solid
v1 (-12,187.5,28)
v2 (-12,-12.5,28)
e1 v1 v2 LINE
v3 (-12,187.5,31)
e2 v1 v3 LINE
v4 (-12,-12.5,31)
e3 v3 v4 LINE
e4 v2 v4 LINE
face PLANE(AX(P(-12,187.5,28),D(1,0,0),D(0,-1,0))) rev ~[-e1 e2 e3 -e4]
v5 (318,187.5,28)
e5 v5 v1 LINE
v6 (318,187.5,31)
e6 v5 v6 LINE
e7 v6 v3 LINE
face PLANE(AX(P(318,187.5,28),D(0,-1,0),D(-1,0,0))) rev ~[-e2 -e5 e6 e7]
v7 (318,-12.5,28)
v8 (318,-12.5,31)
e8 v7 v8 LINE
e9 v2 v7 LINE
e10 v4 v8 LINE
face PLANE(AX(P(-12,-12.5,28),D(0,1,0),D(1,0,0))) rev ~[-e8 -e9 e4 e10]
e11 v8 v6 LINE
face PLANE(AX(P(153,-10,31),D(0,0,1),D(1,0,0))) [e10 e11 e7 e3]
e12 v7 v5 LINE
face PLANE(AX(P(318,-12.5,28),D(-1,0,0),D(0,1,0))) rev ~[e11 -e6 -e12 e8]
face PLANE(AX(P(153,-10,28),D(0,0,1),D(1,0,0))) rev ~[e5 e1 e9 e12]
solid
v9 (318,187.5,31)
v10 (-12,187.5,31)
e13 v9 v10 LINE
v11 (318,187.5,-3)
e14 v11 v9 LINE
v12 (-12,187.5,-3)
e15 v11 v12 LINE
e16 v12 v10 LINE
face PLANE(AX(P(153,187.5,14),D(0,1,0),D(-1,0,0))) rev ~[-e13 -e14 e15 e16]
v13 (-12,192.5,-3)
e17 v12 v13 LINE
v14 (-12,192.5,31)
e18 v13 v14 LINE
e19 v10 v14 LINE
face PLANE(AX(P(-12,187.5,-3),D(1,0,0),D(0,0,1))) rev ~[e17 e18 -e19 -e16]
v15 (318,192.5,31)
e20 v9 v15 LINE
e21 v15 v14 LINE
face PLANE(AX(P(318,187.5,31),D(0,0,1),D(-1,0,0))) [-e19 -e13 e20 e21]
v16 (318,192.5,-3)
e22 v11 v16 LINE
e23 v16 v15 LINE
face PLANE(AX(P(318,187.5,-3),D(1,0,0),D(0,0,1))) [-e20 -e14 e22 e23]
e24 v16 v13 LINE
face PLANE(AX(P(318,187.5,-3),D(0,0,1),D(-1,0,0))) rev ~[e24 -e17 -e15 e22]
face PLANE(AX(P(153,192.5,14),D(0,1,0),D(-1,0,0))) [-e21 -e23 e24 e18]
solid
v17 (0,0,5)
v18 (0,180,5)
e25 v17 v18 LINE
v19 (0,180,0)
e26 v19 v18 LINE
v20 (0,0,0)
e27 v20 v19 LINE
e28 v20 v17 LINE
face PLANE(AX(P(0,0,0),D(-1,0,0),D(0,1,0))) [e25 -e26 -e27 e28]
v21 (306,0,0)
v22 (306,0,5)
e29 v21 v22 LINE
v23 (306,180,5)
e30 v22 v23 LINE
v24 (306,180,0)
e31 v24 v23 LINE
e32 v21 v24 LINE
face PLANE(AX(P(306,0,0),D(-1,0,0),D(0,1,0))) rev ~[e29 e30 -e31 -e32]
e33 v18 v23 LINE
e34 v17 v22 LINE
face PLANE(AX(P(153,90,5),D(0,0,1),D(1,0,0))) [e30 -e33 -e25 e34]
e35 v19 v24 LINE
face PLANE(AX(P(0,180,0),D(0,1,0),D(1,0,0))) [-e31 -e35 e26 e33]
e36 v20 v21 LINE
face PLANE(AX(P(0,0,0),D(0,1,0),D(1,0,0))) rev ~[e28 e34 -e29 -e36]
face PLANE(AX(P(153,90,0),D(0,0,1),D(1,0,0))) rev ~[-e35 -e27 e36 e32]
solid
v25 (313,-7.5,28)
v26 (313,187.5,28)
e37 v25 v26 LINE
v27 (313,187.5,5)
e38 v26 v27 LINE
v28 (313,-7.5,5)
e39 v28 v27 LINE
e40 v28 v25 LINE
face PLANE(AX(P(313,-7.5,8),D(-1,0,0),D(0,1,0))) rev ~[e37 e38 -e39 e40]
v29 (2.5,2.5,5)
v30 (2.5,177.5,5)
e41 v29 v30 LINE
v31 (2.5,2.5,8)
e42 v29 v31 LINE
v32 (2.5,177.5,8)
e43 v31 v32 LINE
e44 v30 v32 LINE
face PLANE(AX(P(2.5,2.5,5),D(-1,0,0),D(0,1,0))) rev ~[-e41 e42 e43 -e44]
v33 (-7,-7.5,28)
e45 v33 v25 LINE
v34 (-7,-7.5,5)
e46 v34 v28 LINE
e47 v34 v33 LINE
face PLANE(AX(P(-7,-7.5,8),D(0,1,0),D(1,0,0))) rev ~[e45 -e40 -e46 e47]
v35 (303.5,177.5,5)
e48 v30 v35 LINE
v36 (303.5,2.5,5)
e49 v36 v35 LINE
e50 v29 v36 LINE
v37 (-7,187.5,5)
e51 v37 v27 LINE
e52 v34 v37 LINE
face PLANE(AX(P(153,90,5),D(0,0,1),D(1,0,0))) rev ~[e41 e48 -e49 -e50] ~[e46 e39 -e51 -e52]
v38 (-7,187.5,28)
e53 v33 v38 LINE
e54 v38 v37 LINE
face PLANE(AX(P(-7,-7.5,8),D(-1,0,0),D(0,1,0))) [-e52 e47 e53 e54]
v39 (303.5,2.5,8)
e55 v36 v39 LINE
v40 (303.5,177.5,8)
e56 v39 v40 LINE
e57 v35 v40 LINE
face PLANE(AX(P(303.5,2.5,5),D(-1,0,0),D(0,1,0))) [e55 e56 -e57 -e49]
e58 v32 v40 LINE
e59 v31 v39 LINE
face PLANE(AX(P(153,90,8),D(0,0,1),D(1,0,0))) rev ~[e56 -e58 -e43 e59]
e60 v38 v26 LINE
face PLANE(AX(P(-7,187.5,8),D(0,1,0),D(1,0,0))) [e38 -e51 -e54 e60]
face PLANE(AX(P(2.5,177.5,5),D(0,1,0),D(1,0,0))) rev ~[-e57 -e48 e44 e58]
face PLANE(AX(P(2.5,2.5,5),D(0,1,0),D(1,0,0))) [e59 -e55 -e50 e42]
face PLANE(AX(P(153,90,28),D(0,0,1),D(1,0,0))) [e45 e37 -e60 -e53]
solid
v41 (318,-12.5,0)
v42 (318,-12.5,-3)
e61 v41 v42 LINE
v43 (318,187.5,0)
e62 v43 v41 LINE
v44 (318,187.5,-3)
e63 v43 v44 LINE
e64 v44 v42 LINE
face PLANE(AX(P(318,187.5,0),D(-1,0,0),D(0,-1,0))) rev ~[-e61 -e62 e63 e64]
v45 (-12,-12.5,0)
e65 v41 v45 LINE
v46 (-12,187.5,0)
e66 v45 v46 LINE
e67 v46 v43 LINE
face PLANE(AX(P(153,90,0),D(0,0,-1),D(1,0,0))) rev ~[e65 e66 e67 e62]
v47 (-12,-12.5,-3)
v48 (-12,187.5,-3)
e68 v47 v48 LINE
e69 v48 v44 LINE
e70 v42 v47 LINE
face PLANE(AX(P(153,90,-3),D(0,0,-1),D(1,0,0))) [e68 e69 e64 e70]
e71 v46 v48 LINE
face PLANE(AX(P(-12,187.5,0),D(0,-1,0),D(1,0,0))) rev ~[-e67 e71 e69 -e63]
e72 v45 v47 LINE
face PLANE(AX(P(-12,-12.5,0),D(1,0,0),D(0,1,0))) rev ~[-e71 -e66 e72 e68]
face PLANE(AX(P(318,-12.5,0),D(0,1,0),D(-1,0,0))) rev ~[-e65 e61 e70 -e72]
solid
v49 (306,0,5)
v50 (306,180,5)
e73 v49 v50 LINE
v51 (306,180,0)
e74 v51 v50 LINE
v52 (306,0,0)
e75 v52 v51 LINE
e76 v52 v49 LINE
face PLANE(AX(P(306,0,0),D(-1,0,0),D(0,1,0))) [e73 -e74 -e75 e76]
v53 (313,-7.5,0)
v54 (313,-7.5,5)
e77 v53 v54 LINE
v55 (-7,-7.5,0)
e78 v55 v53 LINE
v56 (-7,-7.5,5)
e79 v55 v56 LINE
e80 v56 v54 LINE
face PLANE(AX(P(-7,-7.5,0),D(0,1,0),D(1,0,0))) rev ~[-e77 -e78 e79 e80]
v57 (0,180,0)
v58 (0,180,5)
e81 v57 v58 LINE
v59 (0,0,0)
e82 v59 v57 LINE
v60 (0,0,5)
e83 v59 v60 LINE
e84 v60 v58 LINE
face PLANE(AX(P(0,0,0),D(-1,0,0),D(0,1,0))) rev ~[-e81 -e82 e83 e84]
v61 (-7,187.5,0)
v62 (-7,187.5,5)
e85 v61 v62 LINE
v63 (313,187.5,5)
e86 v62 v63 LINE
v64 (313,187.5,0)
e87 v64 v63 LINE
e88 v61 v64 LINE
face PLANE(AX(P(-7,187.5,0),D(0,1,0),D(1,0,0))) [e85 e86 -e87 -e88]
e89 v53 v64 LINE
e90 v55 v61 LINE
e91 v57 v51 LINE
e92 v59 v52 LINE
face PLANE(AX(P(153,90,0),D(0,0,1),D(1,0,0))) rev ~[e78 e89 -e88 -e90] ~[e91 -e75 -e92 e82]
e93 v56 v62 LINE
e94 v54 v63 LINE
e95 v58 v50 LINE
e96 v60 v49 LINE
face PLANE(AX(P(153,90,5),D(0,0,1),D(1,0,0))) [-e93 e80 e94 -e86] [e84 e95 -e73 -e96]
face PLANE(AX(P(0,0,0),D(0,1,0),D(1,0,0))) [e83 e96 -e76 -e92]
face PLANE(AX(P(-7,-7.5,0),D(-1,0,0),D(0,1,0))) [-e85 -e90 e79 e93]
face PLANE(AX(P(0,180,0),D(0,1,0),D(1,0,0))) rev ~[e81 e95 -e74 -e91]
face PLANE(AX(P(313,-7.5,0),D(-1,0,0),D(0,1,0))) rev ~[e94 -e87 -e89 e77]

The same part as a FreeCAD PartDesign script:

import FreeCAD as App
import Part
import Sketcher
from FreeCAD import Vector


def add_polygon(sketch, points):
    """Adds a closed chain of lines whose ends are joined by coincident constraints."""
    first, n = sketch.GeometryCount, len(points)
    for a, b in zip(points, points[1:] + points[:1]):
        sketch.addGeometry(Part.LineSegment(App.Vector(*a, 0), App.Vector(*b, 0)), False)
    for i in range(n):
        sketch.addConstraint(Sketcher.Constraint("Coincident", first + i, 2, first + (i + 1) % n, 1))

doc = App.newDocument("Part")
body = doc.addObject("PartDesign::Body", "Body")

# Sketch on XY plane
sketch1 = body.newObject("Sketcher::SketchObject", "Sketch")
sketch1.AttachmentSupport = (doc.getObject("XY_Plane"), [""])
sketch1.MapMode = "FlatFace"
add_polygon(sketch1, [(0, 180), (0, 0), (306, 0), (306, 180)])  # lines 0-3
sketch1.addConstraint([
    Sketcher.Constraint("Vertical", 0),
    Sketcher.Constraint("Horizontal", 1),
    Sketcher.Constraint("Vertical", 2),
    Sketcher.Constraint("Horizontal", 3),
    Sketcher.Constraint("Coincident", 0, 2, -1, 1),
    Sketcher.Constraint("DistanceX", 1, 1, 1, 2, 306.0),
    Sketcher.Constraint("DistanceY", 0, 2, 0, 1, 180.0),
])
pad1 = body.newObject("PartDesign::Pad", "Pad")
pad1.Profile = sketch1
pad1.Length = 5
body2 = doc.addObject("PartDesign::Body", "Body001")

# Sketch on XY plane
sketch2 = body2.newObject("Sketcher::SketchObject", "Sketch001")
sketch2.AttachmentSupport = (doc.getObject("XY_Plane001"), [""])
sketch2.MapMode = "FlatFace"
add_polygon(sketch2, [(-7, 188), (-7, -8), (313, -8), (313, 188)])  # lines 0-3
sketch2.addConstraint([
    Sketcher.Constraint("Vertical", 0),
    Sketcher.Constraint("Horizontal", 1),
    Sketcher.Constraint("Vertical", 2),
    Sketcher.Constraint("Horizontal", 3),
    Sketcher.Constraint("DistanceX", 1, 1, 1, 2, 320.0),
    Sketcher.Constraint("DistanceY", 0, 2, 0, 1, 195.0),
    Sketcher.Constraint("DistanceX", 0, 2, -1, 1, 7.0),
    Sketcher.Constraint("DistanceY", 0, 2, -1, 1, 7.5),
])
pad2 = body2.newObject("PartDesign::Pad", "Pad001")
pad2.Profile = sketch2
pad2.Length = 5
doc.recompute()

body3 = doc.addObject("PartDesign::Body", "Body002")
body3.BaseFeature = body
boolean = body2.newObject("PartDesign::Boolean", "Boolean")
boolean.Type = "Cut"
boolean.addObjects([body3])
doc.recompute()
body4 = doc.addObject("PartDesign::Body", "Body003")

# Sketch on XY plane
sketch3 = body4.newObject("Sketcher::SketchObject", "Sketch002")
sketch3.AttachmentSupport = (doc.getObject("XY_Plane003"), [""])
sketch3.MapMode = "FlatFace"
add_polygon(sketch3, [(318, 188), (318, -12), (-12, -12), (-12, 188)])  # lines 0-3
sketch3.addConstraint([
    Sketcher.Constraint("Vertical", 0),
    Sketcher.Constraint("Horizontal", 1),
    Sketcher.Constraint("Vertical", 2),
    Sketcher.Constraint("Horizontal", 3),
    Sketcher.Constraint("DistanceX", 1, 2, 1, 1, 330.0),
    Sketcher.Constraint("DistanceY", 0, 2, 0, 1, 200.0),
    Sketcher.Constraint("DistanceX", -1, 1, 0, 2, 318.0),
    Sketcher.Constraint("DistanceY", 0, 2, -1, 1, 12.5),
])
pad3 = body4.newObject("PartDesign::Pad", "Pad002")
pad3.Profile = sketch3
pad3.Length = 3
pad3.Reversed = True
body5 = doc.addObject("PartDesign::Body", "Body004")

# Sketch on XY plane
sketch4 = body5.newObject("Sketcher::SketchObject", "Sketch003")
sketch4.AttachmentSupport = (doc.getObject("XY_Plane004"), [""])
sketch4.MapMode = "FlatFace"
sketch4.AttachmentOffset = App.Placement(Vector(0, 0, 5), App.Rotation())
add_polygon(sketch4, [(-7, 188), (-7, -8), (313, -8), (313, 188)])  # lines 0-3
add_polygon(sketch4, [(304, 2), (2, 2), (2, 178), (304, 178)])  # lines 4-7
sketch4.addConstraint([
    Sketcher.Constraint("Vertical", 0),
    Sketcher.Constraint("Horizontal", 1),
    Sketcher.Constraint("Vertical", 2),
    Sketcher.Constraint("Horizontal", 3),
    Sketcher.Constraint("Horizontal", 4),
    Sketcher.Constraint("Vertical", 5),
    Sketcher.Constraint("Horizontal", 6),
    Sketcher.Constraint("Vertical", 7),
    Sketcher.Constraint("DistanceX", 1, 1, 1, 2, 320.0),
    Sketcher.Constraint("DistanceX", 4, 2, 4, 1, 301.0),
    Sketcher.Constraint("DistanceY", 0, 2, 0, 1, 195.0),
    Sketcher.Constraint("DistanceY", 5, 1, 5, 2, 175.0),
    Sketcher.Constraint("DistanceX", 0, 2, -1, 1, 7.0),
    Sketcher.Constraint("DistanceY", 0, 2, 4, 2, 10.0),
    Sketcher.Constraint("DistanceY", 0, 2, -1, 1, 7.5),
    Sketcher.Constraint("DistanceX", -1, 1, 4, 2, 2.5),
])
pad4 = body5.newObject("PartDesign::Pad", "Pad003")
pad4.Profile = sketch4
pad4.Length = 3

# Sketch on XY plane
sketch5 = body5.newObject("Sketcher::SketchObject", "Sketch004")
sketch5.AttachmentSupport = (doc.getObject("XY_Plane004"), [""])
sketch5.MapMode = "FlatFace"
sketch5.AttachmentOffset = App.Placement(Vector(0, 0, 8), App.Rotation())
add_polygon(sketch5, [(-7, 188), (-7, -8), (313, -8), (313, 188)])  # lines 0-3
sketch5.addConstraint([
    Sketcher.Constraint("Vertical", 0),
    Sketcher.Constraint("Horizontal", 1),
    Sketcher.Constraint("Vertical", 2),
    Sketcher.Constraint("Horizontal", 3),
    Sketcher.Constraint("DistanceX", 1, 1, 1, 2, 320.0),
    Sketcher.Constraint("DistanceY", 0, 2, 0, 1, 195.0),
    Sketcher.Constraint("DistanceX", 0, 2, -1, 1, 7.0),
    Sketcher.Constraint("DistanceY", 0, 2, -1, 1, 7.5),
])
pad5 = body5.newObject("PartDesign::Pad", "Pad004")
pad5.Profile = sketch5
pad5.Length = 20
body6 = doc.addObject("PartDesign::Body", "Body005")

# Sketch on XY plane
sketch6 = body6.newObject("Sketcher::SketchObject", "Sketch005")
sketch6.AttachmentSupport = (doc.getObject("XY_Plane005"), [""])
sketch6.MapMode = "FlatFace"
sketch6.AttachmentOffset = App.Placement(Vector(0, 0, 28), App.Rotation())
add_polygon(sketch6, [(318, -12), (318, 188), (-12, 188), (-12, -12)])  # lines 0-3
sketch6.addConstraint([
    Sketcher.Constraint("Vertical", 0),
    Sketcher.Constraint("Horizontal", 1),
    Sketcher.Constraint("Vertical", 2),
    Sketcher.Constraint("Horizontal", 3),
    Sketcher.Constraint("DistanceX", 1, 2, 1, 1, 330.0),
    Sketcher.Constraint("DistanceY", 0, 1, 0, 2, 200.0),
    Sketcher.Constraint("DistanceX", -1, 1, 0, 2, 318.0),
    Sketcher.Constraint("DistanceY", -1, 1, 0, 2, 187.5),
])
pad6 = body6.newObject("PartDesign::Pad", "Pad005")
pad6.Profile = sketch6
pad6.Length = 3
body7 = doc.addObject("PartDesign::Body", "Body006")

# Sketch on XZ plane
sketch7 = body7.newObject("Sketcher::SketchObject", "Sketch006")
sketch7.AttachmentSupport = (doc.getObject("XZ_Plane006"), [""])
sketch7.MapMode = "FlatFace"
sketch7.AttachmentOffset = App.Placement(Vector(0, 0, -187.5), App.Rotation())
add_polygon(sketch7, [(318, 31), (318, -3), (-12, -3), (-12, 31)])  # lines 0-3
sketch7.addConstraint([
    Sketcher.Constraint("Vertical", 0),
    Sketcher.Constraint("Horizontal", 1),
    Sketcher.Constraint("Vertical", 2),
    Sketcher.Constraint("Horizontal", 3),
    Sketcher.Constraint("DistanceX", 1, 2, 1, 1, 330.0),
    Sketcher.Constraint("DistanceY", 0, 2, 0, 1, 34.0),
    Sketcher.Constraint("DistanceX", -1, 1, 0, 2, 318.0),
    Sketcher.Constraint("DistanceY", 0, 2, -1, 1, 3.0),
])
pad7 = body7.newObject("PartDesign::Pad", "Pad006")
pad7.Profile = sketch7
pad7.Length = 5
pad7.Reversed = True

doc.recompute()
